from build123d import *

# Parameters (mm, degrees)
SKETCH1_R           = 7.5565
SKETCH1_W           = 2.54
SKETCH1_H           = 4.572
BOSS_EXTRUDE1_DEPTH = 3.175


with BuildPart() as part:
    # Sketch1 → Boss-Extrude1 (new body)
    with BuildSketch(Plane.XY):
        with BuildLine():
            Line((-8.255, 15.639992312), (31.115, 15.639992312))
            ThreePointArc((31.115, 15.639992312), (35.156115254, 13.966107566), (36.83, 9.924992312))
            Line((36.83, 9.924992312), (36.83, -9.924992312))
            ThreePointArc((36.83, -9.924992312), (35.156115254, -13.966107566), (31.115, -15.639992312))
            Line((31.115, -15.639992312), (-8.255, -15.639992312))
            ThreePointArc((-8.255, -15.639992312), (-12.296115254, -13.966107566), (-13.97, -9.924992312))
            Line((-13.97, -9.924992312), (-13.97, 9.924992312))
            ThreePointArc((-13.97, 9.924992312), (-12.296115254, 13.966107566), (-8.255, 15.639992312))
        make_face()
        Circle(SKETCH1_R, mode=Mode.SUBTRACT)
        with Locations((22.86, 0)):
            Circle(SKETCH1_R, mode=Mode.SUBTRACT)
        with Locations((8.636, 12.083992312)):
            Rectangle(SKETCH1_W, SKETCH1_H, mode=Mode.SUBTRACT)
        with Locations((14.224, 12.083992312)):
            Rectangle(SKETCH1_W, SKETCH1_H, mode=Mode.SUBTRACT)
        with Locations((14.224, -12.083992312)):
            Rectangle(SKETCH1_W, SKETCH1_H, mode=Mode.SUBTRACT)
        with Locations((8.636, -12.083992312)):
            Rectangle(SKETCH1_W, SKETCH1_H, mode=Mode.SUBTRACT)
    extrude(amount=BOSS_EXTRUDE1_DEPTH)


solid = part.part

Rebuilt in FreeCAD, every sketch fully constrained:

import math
import FreeCAD as App
import Part
import Sketcher
from FreeCAD import Vector
Q = App.Units.Quantity

doc = App.newDocument("Part")
params = doc.addObject("Spreadsheet::Sheet", "Params")
for row, (alias, value) in enumerate([
    ("sketch1_diameter", "0.595 in"),
    ("sketch1_width", "0.1 in"),
    ("sketch1_radius", "0.225 in"),
    ("sketch1_width2", "1.55 in"),
    ("sketch1_height", "0.18 in"),
    ("pad1_length", "0.125 in"),
], start=1):
    params.set(f"A{row}", alias)
    params.set(f"B{row}", "=" + value)
    params.setAlias(f"B{row}", alias)

body = doc.addObject("PartDesign::Body", "Body")

# Sketch on XY plane
sketch1 = body.newObject("Sketcher::SketchObject", "Sketch")
sketch1.AttachmentSupport = (doc.getObject("XY_Plane"), [""])
sketch1.MapMode = "FlatFace"
sketch1.addGeometry(Part.LineSegment(Vector(31.1, 15.6, 0), Vector(-8.3, 15.6, 0)), False)
sketch1.addGeometry(Part.ArcOfCircle(Part.Circle(Vector(-8.3, 9.9, 0), Vector(0, 0, 1), 5.7), math.radians(90), math.radians(180)), False)
sketch1.addGeometry(Part.LineSegment(Vector(-14, 9.9, 0), Vector(-14, -9.9, 0)), False)
sketch1.addGeometry(Part.ArcOfCircle(Part.Circle(Vector(-8.3, -9.9, 0), Vector(0, 0, 1), 5.7), math.radians(-180), math.radians(-90)), False)
sketch1.addGeometry(Part.LineSegment(Vector(-8.3, -15.6, 0), Vector(31.1, -15.6, 0)), False)
sketch1.addGeometry(Part.ArcOfCircle(Part.Circle(Vector(31.1, -9.9, 0), Vector(0, 0, 1), 5.7), math.radians(-90), math.radians(0)), False)
sketch1.addGeometry(Part.LineSegment(Vector(36.8, -9.9, 0), Vector(36.8, 9.9, 0)), False)
sketch1.addGeometry(Part.ArcOfCircle(Part.Circle(Vector(31.1, 9.9, 0), Vector(0, 0, 1), 5.7), math.radians(0), math.radians(90)), False)
sketch1.addGeometry(Part.LineSegment(Vector(13, -14.4, 0), Vector(13, -9.8, 0)), False)
sketch1.addGeometry(Part.LineSegment(Vector(13, -9.8, 0), Vector(15.5, -9.8, 0)), False)
sketch1.addGeometry(Part.LineSegment(Vector(15.5, -9.8, 0), Vector(15.5, -14.4, 0)), False)
sketch1.addGeometry(Part.LineSegment(Vector(15.5, -14.4, 0), Vector(13, -14.4, 0)), False)
sketch1.addGeometry(Part.LineSegment(Vector(7.4, -14.4, 0), Vector(7.4, -9.8, 0)), False)
sketch1.addGeometry(Part.LineSegment(Vector(7.4, -9.8, 0), Vector(9.9, -9.8, 0)), False)
sketch1.addGeometry(Part.LineSegment(Vector(9.9, -9.8, 0), Vector(9.9, -14.4, 0)), False)
sketch1.addGeometry(Part.LineSegment(Vector(9.9, -14.4, 0), Vector(7.4, -14.4, 0)), False)
sketch1.addGeometry(Part.Circle(Vector(22.9, 0, 0), Vector(0, 0, 1), 7.6), False)
sketch1.addGeometry(Part.LineSegment(Vector(13, 9.8, 0), Vector(13, 14.4, 0)), False)
sketch1.addGeometry(Part.LineSegment(Vector(13, 14.4, 0), Vector(15.5, 14.4, 0)), False)
sketch1.addGeometry(Part.LineSegment(Vector(15.5, 14.4, 0), Vector(15.5, 9.8, 0)), False)
sketch1.addGeometry(Part.LineSegment(Vector(15.5, 9.8, 0), Vector(13, 9.8, 0)), False)
sketch1.addGeometry(Part.Circle(Vector(0, 0, 0), Vector(0, 0, 1), 7.6), False)
sketch1.addGeometry(Part.LineSegment(Vector(7.4, 9.8, 0), Vector(7.4, 14.4, 0)), False)
sketch1.addGeometry(Part.LineSegment(Vector(7.4, 14.4, 0), Vector(9.9, 14.4, 0)), False)
sketch1.addGeometry(Part.LineSegment(Vector(9.9, 14.4, 0), Vector(9.9, 9.8, 0)), False)
sketch1.addGeometry(Part.LineSegment(Vector(9.9, 9.8, 0), Vector(7.4, 9.8, 0)), False)
sketch1.addConstraint(Sketcher.Constraint("Tangent", 0, 2, 1, 1))
sketch1.addConstraint(Sketcher.Constraint("Tangent", 1, 2, 2, 1))
sketch1.addConstraint(Sketcher.Constraint("Tangent", 2, 2, 3, 1))
sketch1.addConstraint(Sketcher.Constraint("Tangent", 3, 2, 4, 1))
sketch1.addConstraint(Sketcher.Constraint("Tangent", 4, 2, 5, 1))
sketch1.addConstraint(Sketcher.Constraint("Tangent", 5, 2, 6, 1))
sketch1.addConstraint(Sketcher.Constraint("Tangent", 6, 2, 7, 1))
sketch1.addConstraint(Sketcher.Constraint("Tangent", 7, 2, 0, 1))
sketch1.addConstraint(Sketcher.Constraint("Coincident", 8, 2, 9, 1))
sketch1.addConstraint(Sketcher.Constraint("Coincident", 9, 2, 10, 1))
sketch1.addConstraint(Sketcher.Constraint("Coincident", 10, 2, 11, 1))
sketch1.addConstraint(Sketcher.Constraint("Coincident", 11, 2, 8, 1))
sketch1.addConstraint(Sketcher.Constraint("Coincident", 12, 2, 13, 1))
sketch1.addConstraint(Sketcher.Constraint("Coincident", 13, 2, 14, 1))
sketch1.addConstraint(Sketcher.Constraint("Coincident", 14, 2, 15, 1))
sketch1.addConstraint(Sketcher.Constraint("Coincident", 15, 2, 12, 1))
sketch1.addConstraint(Sketcher.Constraint("Coincident", 17, 2, 18, 1))
sketch1.addConstraint(Sketcher.Constraint("Coincident", 18, 2, 19, 1))
sketch1.addConstraint(Sketcher.Constraint("Coincident", 19, 2, 20, 1))
sketch1.addConstraint(Sketcher.Constraint("Coincident", 20, 2, 17, 1))
sketch1.addConstraint(Sketcher.Constraint("Coincident", 22, 2, 23, 1))
sketch1.addConstraint(Sketcher.Constraint("Coincident", 23, 2, 24, 1))
sketch1.addConstraint(Sketcher.Constraint("Coincident", 24, 2, 25, 1))
sketch1.addConstraint(Sketcher.Constraint("Coincident", 25, 2, 22, 1))
sketch1.addConstraint(Sketcher.Constraint("Horizontal", 0))
sketch1.addConstraint(Sketcher.Constraint("Vertical", 2))
sketch1.addConstraint(Sketcher.Constraint("Horizontal", 4))
sketch1.addConstraint(Sketcher.Constraint("Vertical", 6))
sketch1.addConstraint(Sketcher.Constraint("Vertical", 8))
sketch1.addConstraint(Sketcher.Constraint("Horizontal", 9))
sketch1.addConstraint(Sketcher.Constraint("Vertical", 10))
sketch1.addConstraint(Sketcher.Constraint("Horizontal", 11))
sketch1.addConstraint(Sketcher.Constraint("Vertical", 12))
sketch1.addConstraint(Sketcher.Constraint("Horizontal", 13))
sketch1.addConstraint(Sketcher.Constraint("Vertical", 14))
sketch1.addConstraint(Sketcher.Constraint("Horizontal", 15))
sketch1.addConstraint(Sketcher.Constraint("Vertical", 17))
sketch1.addConstraint(Sketcher.Constraint("Horizontal", 18))
sketch1.addConstraint(Sketcher.Constraint("Vertical", 19))
sketch1.addConstraint(Sketcher.Constraint("Horizontal", 20))
sketch1.addConstraint(Sketcher.Constraint("Vertical", 22))
sketch1.addConstraint(Sketcher.Constraint("Horizontal", 23))
sketch1.addConstraint(Sketcher.Constraint("Vertical", 24))
sketch1.addConstraint(Sketcher.Constraint("Horizontal", 25))
sketch1.addConstraint(Sketcher.Constraint("Coincident", 21, 3, -1, 1))
sketch1.addConstraint(Sketcher.Constraint("Equal", 1, 3))
sketch1.addConstraint(Sketcher.Constraint("Equal", 3, 5))
sketch1.addConstraint(Sketcher.Constraint("Equal", 5, 7))
sketch1.addConstraint(Sketcher.Constraint("Equal", 16, 21))
sketch1.addConstraint(Sketcher.Constraint("Symmetric", 11, 2, 17, 2, -1))
sketch1.addConstraint(Sketcher.Constraint("Symmetric", 9, 2, 19, 2, -1))
sketch1.addConstraint(Sketcher.Constraint("Symmetric", 15, 2, 22, 2, -1))
sketch1.addConstraint(Sketcher.Constraint("Symmetric", 13, 2, 24, 2, -1))
sketch1.addConstraint(Sketcher.Constraint("PointOnObject", 16, 3, -1))
sketch1.addConstraint(Sketcher.Constraint("Horizontal", 9, 2, 12, 2))
sketch1.addConstraint(Sketcher.Constraint("Horizontal", 11, 2, 14, 2))
sketch1.addConstraint(Sketcher.Constraint("Equal", 11, 13))
sketch1.addConstraint(Sketcher.Constraint("Diameter", 16, Q("0.595 in")))
sketch1.addConstraint(Sketcher.Constraint("DistanceX", 9, 1, 9, 2, Q("0.1 in")))
sketch1.addConstraint(Sketcher.Constraint("Radius", 1, Q("0.225 in")))
sketch1.addConstraint(Sketcher.Constraint("DistanceX", 0, 2, 0, 1, Q("1.55 in")))
sketch1.addConstraint(Sketcher.Constraint("DistanceY", 8, 1, 8, 2, Q("0.18 in")))
sketch1.addConstraint(Sketcher.Constraint("DistanceX", -1, 1, 16, 3, Q("0.9 in")))
sketch1.addConstraint(Sketcher.Constraint("DistanceX", 1, 2, -1, 1, Q("0.55 in")))
sketch1.addConstraint(Sketcher.Constraint("DistanceX", -1, 1, 8, 2, Q("0.51 in")))
sketch1.addConstraint(Sketcher.Constraint("DistanceX", -1, 1, 12, 2, Q("0.29 in")))
sketch1.addConstraint(Sketcher.Constraint("DistanceY", 4, 2, 8, 2, Q("0.23 in")))
sketch1.addConstraint(Sketcher.Constraint("DistanceY", 17, 2, 7, 2, Q("0.05 in")))
sketch1.addConstraint(Sketcher.Constraint("DistanceY", 2, 2, 2, 1, Q("19.849985 mm")))
sketch1.setExpression("Constraints[57]", "Params.sketch1_diameter")
sketch1.setExpression("Constraints[58]", "Params.sketch1_width")
sketch1.setExpression("Constraints[59]", "Params.sketch1_radius")
sketch1.setExpression("Constraints[60]", "Params.sketch1_width2")
sketch1.setExpression("Constraints[61]", "Params.sketch1_height")
pad1 = body.newObject("PartDesign::Pad", "Pad")
pad1.Profile = sketch1
pad1.setExpression("Length", "Params.pad1_length")

doc.recompute()
